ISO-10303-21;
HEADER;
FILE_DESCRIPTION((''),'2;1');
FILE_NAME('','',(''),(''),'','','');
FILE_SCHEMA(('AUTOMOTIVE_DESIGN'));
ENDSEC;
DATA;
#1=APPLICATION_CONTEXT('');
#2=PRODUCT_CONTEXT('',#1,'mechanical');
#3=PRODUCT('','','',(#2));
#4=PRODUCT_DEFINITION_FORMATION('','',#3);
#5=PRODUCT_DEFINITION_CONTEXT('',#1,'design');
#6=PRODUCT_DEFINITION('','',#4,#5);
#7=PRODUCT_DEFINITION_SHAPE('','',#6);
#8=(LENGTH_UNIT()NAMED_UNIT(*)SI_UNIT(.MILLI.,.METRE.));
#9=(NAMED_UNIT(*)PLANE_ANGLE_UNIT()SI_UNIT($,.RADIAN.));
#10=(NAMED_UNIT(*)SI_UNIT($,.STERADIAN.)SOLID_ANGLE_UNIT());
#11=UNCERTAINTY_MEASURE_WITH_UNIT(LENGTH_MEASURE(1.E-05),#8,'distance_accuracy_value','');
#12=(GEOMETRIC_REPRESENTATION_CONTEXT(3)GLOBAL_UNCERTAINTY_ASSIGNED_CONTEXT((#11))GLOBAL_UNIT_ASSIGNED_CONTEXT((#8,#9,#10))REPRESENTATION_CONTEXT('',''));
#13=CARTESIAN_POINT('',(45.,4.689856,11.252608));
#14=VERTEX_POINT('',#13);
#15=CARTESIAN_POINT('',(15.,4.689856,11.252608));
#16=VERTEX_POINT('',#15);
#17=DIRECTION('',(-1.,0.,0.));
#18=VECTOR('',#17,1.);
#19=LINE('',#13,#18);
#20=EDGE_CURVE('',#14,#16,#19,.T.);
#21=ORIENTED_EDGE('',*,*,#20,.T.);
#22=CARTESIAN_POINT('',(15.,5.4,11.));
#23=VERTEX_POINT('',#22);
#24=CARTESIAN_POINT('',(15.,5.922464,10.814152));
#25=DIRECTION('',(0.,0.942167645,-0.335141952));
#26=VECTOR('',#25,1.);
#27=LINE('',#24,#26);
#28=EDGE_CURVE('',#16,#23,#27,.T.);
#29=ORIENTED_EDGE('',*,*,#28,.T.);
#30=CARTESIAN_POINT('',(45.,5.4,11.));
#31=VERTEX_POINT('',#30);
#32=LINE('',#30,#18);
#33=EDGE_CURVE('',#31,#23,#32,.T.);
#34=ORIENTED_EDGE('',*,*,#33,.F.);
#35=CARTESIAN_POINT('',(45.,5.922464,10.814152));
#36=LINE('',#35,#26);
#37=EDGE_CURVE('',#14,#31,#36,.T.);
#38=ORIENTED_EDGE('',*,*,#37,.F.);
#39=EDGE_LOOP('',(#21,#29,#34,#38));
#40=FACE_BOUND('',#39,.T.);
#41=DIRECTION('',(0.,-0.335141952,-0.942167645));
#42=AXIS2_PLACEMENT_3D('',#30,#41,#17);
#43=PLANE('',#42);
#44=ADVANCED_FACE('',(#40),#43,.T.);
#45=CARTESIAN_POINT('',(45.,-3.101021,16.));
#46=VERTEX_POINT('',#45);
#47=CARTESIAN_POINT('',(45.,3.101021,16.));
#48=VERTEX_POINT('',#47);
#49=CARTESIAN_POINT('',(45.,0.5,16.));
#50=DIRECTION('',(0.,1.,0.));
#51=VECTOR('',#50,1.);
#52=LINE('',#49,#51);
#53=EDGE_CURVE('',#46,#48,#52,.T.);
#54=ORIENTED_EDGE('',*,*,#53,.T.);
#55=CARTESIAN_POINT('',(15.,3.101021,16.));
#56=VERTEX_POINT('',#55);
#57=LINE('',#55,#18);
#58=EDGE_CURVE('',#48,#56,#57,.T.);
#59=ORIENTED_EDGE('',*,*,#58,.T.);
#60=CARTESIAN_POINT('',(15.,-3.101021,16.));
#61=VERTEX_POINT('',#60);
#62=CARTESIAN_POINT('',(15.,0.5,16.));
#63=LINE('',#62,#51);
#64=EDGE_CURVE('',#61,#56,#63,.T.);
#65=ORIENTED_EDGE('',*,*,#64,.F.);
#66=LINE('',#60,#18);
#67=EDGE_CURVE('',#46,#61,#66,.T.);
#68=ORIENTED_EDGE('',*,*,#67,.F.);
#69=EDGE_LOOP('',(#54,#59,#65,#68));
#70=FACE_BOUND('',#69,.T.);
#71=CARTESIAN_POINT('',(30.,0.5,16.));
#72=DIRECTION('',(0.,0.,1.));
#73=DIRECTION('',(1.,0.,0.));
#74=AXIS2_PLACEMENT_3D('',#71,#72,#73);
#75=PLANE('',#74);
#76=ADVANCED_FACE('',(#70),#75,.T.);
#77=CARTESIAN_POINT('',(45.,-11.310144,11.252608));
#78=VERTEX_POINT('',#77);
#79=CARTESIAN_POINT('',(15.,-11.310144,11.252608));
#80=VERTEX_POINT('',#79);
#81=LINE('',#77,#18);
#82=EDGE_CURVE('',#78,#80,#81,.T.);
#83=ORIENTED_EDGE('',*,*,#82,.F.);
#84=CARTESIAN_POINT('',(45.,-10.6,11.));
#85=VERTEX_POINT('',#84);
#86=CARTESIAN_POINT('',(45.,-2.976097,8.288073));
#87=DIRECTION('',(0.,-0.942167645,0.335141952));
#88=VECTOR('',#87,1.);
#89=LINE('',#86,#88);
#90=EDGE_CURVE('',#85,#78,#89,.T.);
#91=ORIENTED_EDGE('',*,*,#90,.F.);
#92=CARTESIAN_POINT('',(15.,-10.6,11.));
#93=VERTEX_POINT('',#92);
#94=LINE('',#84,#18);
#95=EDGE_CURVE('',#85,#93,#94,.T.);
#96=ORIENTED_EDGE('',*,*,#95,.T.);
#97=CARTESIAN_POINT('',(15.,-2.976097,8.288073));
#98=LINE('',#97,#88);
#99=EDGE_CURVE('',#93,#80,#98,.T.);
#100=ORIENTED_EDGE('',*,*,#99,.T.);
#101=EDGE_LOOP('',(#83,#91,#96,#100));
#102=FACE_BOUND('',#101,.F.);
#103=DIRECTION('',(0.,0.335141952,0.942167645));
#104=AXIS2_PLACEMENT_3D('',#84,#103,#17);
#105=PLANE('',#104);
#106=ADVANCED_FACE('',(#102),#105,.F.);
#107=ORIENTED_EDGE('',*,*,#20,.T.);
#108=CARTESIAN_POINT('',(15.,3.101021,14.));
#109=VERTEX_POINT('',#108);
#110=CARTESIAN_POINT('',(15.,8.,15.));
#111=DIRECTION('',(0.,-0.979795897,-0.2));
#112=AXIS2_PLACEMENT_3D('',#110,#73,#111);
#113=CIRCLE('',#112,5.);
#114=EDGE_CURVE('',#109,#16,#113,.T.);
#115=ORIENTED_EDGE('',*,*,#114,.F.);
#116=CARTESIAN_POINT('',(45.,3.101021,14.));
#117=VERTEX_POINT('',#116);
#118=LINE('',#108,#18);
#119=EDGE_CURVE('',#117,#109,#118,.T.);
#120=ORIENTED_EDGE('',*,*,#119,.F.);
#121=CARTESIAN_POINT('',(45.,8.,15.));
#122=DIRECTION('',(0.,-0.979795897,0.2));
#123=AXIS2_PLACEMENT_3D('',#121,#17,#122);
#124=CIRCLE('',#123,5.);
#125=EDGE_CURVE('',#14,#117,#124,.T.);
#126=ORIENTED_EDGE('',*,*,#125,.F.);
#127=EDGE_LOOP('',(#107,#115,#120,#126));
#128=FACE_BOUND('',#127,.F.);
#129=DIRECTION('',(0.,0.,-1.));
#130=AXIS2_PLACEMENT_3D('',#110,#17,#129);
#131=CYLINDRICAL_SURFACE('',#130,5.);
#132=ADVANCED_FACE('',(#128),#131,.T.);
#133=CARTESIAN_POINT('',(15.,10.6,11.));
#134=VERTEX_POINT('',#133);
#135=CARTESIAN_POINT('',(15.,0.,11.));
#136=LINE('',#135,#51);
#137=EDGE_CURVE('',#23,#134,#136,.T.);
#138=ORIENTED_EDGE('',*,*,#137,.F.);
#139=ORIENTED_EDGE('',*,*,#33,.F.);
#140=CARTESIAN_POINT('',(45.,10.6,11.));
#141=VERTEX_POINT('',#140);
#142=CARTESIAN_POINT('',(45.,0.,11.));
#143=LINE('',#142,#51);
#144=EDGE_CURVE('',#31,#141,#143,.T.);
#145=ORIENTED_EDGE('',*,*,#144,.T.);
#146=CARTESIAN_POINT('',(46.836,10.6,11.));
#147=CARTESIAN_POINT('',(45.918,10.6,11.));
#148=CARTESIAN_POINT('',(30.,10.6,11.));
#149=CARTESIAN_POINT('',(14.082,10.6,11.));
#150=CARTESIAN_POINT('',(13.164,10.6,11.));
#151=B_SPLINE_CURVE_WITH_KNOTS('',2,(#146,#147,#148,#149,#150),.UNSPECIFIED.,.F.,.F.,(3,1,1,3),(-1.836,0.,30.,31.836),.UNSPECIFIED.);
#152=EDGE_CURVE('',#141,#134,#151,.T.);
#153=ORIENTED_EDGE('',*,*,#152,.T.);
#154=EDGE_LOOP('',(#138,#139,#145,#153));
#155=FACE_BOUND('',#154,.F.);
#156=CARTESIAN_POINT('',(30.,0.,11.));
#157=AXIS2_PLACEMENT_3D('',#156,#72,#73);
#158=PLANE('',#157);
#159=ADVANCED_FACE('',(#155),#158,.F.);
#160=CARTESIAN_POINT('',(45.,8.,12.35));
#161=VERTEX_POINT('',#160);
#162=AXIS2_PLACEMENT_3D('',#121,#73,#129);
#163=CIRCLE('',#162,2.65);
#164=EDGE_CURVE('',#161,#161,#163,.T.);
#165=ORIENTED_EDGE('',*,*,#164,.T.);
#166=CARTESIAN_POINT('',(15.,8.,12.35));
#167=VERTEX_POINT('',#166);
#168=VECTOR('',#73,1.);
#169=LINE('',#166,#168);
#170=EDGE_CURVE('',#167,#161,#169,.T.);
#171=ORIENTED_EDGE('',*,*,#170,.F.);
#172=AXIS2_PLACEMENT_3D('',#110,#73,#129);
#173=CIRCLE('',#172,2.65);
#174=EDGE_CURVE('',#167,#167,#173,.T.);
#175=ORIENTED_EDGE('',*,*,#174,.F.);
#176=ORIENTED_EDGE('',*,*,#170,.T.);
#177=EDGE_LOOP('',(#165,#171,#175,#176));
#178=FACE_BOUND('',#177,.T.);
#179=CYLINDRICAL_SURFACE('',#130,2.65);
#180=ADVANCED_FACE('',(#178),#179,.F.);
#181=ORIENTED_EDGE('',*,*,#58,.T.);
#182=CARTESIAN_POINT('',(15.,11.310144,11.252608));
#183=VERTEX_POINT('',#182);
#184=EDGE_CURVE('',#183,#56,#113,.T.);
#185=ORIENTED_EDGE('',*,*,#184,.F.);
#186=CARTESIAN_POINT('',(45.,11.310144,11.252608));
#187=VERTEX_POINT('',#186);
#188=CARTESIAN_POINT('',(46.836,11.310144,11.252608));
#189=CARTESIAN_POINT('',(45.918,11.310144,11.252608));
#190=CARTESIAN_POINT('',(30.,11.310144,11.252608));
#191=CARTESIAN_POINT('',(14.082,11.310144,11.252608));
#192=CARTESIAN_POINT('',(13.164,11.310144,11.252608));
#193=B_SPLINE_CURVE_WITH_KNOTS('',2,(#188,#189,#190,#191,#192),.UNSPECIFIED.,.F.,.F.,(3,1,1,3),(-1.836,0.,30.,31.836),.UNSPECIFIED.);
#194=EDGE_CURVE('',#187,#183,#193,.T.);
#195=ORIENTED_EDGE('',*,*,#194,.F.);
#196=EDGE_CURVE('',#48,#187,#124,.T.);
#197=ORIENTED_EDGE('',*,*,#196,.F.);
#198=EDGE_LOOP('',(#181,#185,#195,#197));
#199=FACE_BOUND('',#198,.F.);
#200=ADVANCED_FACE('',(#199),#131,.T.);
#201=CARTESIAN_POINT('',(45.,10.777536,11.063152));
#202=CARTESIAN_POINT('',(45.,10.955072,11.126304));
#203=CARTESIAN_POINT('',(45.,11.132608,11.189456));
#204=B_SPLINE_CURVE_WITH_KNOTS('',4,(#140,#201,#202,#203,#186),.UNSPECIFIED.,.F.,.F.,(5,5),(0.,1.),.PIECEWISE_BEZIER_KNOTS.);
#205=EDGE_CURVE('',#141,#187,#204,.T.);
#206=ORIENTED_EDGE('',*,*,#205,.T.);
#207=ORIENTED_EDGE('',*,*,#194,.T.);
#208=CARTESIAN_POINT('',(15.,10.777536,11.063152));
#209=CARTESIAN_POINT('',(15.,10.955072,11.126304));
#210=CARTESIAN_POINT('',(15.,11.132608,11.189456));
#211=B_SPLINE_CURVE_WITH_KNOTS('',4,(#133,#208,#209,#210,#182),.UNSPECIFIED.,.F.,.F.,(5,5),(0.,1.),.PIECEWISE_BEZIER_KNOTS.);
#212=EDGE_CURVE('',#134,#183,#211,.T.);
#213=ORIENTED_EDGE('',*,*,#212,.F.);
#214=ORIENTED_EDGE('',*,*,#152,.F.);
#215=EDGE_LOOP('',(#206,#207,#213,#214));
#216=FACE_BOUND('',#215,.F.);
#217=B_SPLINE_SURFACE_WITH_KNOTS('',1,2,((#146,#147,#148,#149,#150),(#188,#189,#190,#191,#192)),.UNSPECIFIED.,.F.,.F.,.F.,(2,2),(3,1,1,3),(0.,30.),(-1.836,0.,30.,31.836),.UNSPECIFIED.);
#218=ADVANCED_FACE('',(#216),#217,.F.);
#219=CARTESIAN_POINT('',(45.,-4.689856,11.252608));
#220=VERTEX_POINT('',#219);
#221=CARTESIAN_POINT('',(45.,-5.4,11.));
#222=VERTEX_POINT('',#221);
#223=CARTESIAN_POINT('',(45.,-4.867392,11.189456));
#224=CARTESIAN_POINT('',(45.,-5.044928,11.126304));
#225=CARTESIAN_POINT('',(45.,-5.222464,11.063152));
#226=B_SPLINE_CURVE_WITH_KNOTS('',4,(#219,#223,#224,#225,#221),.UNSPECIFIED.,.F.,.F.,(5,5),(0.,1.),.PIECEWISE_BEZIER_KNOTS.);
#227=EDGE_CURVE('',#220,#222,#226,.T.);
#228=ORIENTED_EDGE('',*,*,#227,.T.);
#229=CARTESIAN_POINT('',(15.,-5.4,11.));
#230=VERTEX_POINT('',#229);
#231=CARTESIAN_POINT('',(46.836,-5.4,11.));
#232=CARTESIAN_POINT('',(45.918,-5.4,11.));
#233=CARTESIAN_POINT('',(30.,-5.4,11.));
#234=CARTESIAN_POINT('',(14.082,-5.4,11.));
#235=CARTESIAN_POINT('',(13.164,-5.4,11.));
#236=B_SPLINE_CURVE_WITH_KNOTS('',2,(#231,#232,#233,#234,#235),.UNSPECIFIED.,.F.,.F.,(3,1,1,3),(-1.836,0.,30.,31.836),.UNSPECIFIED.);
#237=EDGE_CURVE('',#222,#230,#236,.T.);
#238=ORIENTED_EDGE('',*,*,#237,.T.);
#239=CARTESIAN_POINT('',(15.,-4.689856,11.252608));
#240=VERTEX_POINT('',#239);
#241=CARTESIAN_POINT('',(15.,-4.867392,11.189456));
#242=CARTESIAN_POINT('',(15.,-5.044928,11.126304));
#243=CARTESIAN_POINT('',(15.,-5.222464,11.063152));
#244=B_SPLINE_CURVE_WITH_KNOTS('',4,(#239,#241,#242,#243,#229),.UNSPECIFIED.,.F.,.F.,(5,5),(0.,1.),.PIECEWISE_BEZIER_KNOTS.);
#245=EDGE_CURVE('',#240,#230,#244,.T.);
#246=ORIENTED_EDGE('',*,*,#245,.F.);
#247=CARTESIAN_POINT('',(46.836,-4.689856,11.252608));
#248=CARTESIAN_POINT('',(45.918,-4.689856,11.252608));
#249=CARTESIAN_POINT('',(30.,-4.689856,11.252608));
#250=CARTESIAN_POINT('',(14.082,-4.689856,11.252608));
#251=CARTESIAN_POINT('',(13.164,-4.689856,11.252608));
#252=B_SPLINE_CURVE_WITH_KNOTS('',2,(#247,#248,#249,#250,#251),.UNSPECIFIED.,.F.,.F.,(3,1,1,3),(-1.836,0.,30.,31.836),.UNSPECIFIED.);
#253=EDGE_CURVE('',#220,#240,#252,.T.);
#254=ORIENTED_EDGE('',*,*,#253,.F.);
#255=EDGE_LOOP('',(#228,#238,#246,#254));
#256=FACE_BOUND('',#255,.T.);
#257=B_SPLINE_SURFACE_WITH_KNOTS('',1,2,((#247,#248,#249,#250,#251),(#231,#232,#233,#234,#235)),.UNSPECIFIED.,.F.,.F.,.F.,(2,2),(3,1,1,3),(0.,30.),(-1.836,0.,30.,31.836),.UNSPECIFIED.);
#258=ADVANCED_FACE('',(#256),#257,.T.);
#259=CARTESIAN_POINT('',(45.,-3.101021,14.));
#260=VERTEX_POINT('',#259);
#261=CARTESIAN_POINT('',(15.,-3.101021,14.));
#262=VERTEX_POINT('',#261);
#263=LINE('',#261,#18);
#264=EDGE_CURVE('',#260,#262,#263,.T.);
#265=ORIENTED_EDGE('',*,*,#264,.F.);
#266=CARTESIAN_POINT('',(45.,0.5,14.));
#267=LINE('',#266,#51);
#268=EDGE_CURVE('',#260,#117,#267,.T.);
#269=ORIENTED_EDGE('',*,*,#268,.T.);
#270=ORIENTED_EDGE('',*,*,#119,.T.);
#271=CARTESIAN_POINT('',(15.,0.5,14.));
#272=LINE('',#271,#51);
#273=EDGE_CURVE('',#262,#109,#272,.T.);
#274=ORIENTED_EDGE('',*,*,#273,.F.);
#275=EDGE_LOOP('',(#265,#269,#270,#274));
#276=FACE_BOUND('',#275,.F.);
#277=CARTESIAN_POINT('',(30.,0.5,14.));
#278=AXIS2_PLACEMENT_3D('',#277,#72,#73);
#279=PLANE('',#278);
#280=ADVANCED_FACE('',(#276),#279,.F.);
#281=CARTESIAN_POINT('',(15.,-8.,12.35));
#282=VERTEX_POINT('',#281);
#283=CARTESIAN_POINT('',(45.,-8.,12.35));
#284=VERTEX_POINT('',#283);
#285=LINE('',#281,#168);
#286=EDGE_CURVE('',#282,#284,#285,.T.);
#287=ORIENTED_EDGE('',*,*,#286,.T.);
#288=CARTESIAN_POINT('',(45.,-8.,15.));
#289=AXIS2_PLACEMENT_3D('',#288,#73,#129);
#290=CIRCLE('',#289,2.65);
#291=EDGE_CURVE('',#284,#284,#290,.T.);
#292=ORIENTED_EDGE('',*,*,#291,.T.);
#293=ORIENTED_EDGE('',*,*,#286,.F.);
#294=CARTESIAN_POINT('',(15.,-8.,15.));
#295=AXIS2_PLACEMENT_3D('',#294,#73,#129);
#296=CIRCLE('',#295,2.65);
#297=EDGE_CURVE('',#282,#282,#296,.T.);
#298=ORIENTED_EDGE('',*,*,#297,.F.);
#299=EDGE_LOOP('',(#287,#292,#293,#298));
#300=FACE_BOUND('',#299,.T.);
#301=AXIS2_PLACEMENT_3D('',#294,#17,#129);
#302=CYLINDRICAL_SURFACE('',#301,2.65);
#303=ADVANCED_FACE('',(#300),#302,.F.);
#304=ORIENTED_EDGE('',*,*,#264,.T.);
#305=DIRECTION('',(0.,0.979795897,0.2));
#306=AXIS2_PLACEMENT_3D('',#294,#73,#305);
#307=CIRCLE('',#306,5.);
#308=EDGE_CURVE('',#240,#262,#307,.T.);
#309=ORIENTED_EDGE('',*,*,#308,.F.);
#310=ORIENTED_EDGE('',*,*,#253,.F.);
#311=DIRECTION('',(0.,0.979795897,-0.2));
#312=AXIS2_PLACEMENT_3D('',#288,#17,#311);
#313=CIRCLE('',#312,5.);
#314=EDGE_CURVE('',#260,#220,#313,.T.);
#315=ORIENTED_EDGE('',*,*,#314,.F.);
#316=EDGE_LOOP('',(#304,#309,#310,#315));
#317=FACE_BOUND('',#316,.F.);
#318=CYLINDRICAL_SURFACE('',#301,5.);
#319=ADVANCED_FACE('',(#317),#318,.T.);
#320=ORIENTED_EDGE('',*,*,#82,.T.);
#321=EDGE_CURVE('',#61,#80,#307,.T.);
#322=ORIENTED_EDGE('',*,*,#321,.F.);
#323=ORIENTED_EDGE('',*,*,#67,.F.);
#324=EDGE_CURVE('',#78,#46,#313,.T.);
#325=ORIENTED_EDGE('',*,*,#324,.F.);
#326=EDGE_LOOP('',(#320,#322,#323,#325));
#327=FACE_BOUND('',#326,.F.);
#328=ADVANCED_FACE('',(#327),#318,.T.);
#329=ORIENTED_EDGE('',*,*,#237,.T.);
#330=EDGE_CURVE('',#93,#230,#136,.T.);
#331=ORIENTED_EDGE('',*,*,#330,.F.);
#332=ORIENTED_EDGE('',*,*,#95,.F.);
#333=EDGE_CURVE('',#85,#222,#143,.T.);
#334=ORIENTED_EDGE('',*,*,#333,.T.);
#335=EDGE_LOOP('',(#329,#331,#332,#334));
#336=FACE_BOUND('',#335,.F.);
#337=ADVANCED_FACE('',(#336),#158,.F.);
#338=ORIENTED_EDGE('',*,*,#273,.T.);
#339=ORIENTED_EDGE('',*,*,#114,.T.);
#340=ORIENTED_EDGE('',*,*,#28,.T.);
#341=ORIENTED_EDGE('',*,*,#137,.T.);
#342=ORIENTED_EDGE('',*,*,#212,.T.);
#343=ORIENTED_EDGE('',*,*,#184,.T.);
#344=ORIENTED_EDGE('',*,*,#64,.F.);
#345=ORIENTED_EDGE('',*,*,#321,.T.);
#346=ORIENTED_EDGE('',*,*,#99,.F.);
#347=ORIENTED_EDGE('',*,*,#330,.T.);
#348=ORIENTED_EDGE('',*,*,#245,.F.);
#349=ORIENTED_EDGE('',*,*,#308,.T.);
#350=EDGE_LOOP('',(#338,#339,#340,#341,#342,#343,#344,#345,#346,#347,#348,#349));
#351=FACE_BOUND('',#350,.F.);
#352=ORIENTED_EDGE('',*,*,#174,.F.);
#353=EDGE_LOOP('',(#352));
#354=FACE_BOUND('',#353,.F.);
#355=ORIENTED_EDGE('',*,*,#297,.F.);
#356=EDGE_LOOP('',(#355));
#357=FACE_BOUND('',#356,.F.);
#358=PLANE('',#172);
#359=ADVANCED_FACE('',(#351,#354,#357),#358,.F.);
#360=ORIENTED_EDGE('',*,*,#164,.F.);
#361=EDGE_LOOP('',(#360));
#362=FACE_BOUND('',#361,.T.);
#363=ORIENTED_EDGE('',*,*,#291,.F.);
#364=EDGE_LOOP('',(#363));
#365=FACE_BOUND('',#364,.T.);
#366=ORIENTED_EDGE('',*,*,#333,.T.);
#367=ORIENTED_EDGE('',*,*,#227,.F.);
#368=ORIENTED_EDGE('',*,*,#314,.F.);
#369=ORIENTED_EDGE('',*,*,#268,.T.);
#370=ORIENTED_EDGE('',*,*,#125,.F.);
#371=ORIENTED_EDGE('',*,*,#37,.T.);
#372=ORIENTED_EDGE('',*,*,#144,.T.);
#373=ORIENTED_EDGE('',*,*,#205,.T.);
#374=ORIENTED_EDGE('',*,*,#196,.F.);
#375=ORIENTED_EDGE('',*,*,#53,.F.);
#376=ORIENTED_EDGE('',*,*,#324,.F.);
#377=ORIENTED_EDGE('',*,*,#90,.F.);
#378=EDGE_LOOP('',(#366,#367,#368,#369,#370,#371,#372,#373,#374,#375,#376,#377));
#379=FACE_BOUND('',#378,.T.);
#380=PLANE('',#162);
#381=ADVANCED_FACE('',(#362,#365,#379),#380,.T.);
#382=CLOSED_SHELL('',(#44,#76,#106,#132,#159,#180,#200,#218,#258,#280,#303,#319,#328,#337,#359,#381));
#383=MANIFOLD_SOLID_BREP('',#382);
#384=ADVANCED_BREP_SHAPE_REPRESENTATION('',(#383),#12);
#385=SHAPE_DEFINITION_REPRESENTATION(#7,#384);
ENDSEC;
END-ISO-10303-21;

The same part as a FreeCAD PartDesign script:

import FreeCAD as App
import Part
import Sketcher


def edges_at(feature, points):
    """Names of the edges that pass closest to the given points."""
    edges = feature.Shape.Edges
    near = lambda p: min(range(len(edges)), key=lambda i: edges[i].distToShape(Part.Vertex(*p))[0])
    return sorted({f"Edge{near(p) + 1}" for p in points})

doc = App.newDocument("Part")
body = doc.addObject("PartDesign::Body", "Body")

sketch1 = body.newObject("Sketcher::SketchObject", "Sketch")
sketch1.AttachmentSupport = (doc.getObject("XY_Plane"), [""])
sketch1.MapMode = "FlatFace"
sketch1.AttachmentOffset = App.Placement(App.Vector(0, 0, 9), App.Rotation())
sketch1.addGeometry(Part.LineSegment(App.Vector(15, 12, 0), App.Vector(15, -12, 0)), False)
sketch1.addGeometry(Part.LineSegment(App.Vector(15, -12, 0), App.Vector(45, -12, 0)), False)
sketch1.addGeometry(Part.LineSegment(App.Vector(45, -12, 0), App.Vector(45, 12, 0)), False)
sketch1.addGeometry(Part.LineSegment(App.Vector(45, 12, 0), App.Vector(15, 12, 0)), False)
sketch1.addConstraint(Sketcher.Constraint("Coincident", 0, 2, 1, 1))
sketch1.addConstraint(Sketcher.Constraint("Coincident", 1, 2, 2, 1))
sketch1.addConstraint(Sketcher.Constraint("Coincident", 2, 2, 3, 1))
sketch1.addConstraint(Sketcher.Constraint("Coincident", 3, 2, 0, 1))
sketch1.addConstraint(Sketcher.Constraint("Vertical", 0))
sketch1.addConstraint(Sketcher.Constraint("Horizontal", 1))
sketch1.addConstraint(Sketcher.Constraint("Vertical", 2))
sketch1.addConstraint(Sketcher.Constraint("Horizontal", 3))
sketch1.addConstraint(Sketcher.Constraint("DistanceX", 1, 1, 1, 2, 30.0))
sketch1.addConstraint(Sketcher.Constraint("DistanceY", 0, 2, 0, 1, 24.0))
sketch1.addConstraint(Sketcher.Constraint("DistanceX", -1, 1, 0, 2, 15.0))
sketch1.addConstraint(Sketcher.Constraint("DistanceY", 0, 2, -1, 1, 12.0))
pad1 = body.newObject("PartDesign::Pad", "Pad")
pad1.Profile = sketch1
pad1.Length = 2
body2 = doc.addObject("PartDesign::Body", "Body001")

sketch2 = body2.newObject("Sketcher::SketchObject", "Sketch001")
sketch2.AttachmentSupport = (doc.getObject("YZ_Plane001"), [""])
sketch2.MapMode = "FlatFace"
sketch2.AttachmentOffset = App.Placement(App.Vector(0, 0, 15), App.Rotation())
sketch2.addGeometry(Part.Circle(App.Vector(-8, 15, 0), App.Vector(0, 0, 1), 2.6), False)
sketch2.addConstraint(Sketcher.Constraint("Diameter", 0, 5.3))
sketch2.addConstraint(Sketcher.Constraint("DistanceX", 0, 3, -1, 1, 8.0))
sketch2.addConstraint(Sketcher.Constraint("DistanceY", -1, 1, 0, 3, 15.0))
pad2 = body2.newObject("PartDesign::Pad", "Pad001")
pad2.Profile = sketch2
pad2.Length = 30
body3 = doc.addObject("PartDesign::Body", "Body002")
body3.AllowCompound = True

sketch3 = body3.newObject("Sketcher::SketchObject", "Sketch002")
sketch3.AttachmentSupport = (doc.getObject("YZ_Plane002"), [""])
sketch3.MapMode = "FlatFace"
sketch3.AttachmentOffset = App.Placement(App.Vector(0, 0, 15), App.Rotation())
sketch3.addGeometry(Part.Circle(App.Vector(8, 15, 0), App.Vector(0, 0, 1), 2.6), False)
sketch3.addConstraint(Sketcher.Constraint("Diameter", 0, 5.3))
sketch3.addConstraint(Sketcher.Constraint("DistanceX", -1, 1, 0, 3, 8.0))
sketch3.addConstraint(Sketcher.Constraint("DistanceY", -1, 1, 0, 3, 15.0))
pad3 = body3.newObject("PartDesign::Pad", "Pad002")
pad3.Profile = sketch3
pad3.Length = 30
doc.recompute()

boolean = body3.newObject("PartDesign::Boolean", "Boolean")
boolean.Type = "Fuse"
boolean.addObjects([body2])
body4 = doc.addObject("PartDesign::Body", "Body003")

sketch4 = body4.newObject("Sketcher::SketchObject", "Sketch003")
sketch4.AttachmentSupport = (doc.getObject("YZ_Plane003"), [""])
sketch4.MapMode = "FlatFace"
sketch4.AttachmentOffset = App.Placement(App.Vector(0, 0, 15), App.Rotation())
sketch4.addGeometry(Part.Circle(App.Vector(-8, 15, 0), App.Vector(0, 0, 1), 5), False)
sketch4.addConstraint(Sketcher.Constraint("Diameter", 0, 10.0))
sketch4.addConstraint(Sketcher.Constraint("DistanceX", 0, 3, -1, 1, 8.0))
sketch4.addConstraint(Sketcher.Constraint("DistanceY", -1, 1, 0, 3, 15.0))
pad4 = body4.newObject("PartDesign::Pad", "Pad003")
pad4.Profile = sketch4
pad4.Length = 30
body5 = doc.addObject("PartDesign::Body", "Body004")

sketch5 = body5.newObject("Sketcher::SketchObject", "Sketch004")
sketch5.AttachmentSupport = (doc.getObject("YZ_Plane004"), [""])
sketch5.MapMode = "FlatFace"
sketch5.AttachmentOffset = App.Placement(App.Vector(0, 0, 15), App.Rotation())
sketch5.addGeometry(Part.Circle(App.Vector(8, 15, 0), App.Vector(0, 0, 1), 5), False)
sketch5.addConstraint(Sketcher.Constraint("Diameter", 0, 10.0))
sketch5.addConstraint(Sketcher.Constraint("DistanceX", -1, 1, 0, 3, 8.0))
sketch5.addConstraint(Sketcher.Constraint("DistanceY", -1, 1, 0, 3, 15.0))
pad5 = body5.newObject("PartDesign::Pad", "Pad004")
pad5.Profile = sketch5
pad5.Length = 30
body6 = doc.addObject("PartDesign::Body", "Body005")

sketch6 = body6.newObject("Sketcher::SketchObject", "Sketch005")
sketch6.AttachmentSupport = (doc.getObject("XY_Plane005"), [""])
sketch6.MapMode = "FlatFace"
sketch6.AttachmentOffset = App.Placement(App.Vector(0, 0, 14), App.Rotation())
sketch6.addGeometry(Part.LineSegment(App.Vector(15, 5, 0), App.Vector(15, -4, 0)), False)
sketch6.addGeometry(Part.LineSegment(App.Vector(15, -4, 0), App.Vector(45, -4, 0)), False)
sketch6.addGeometry(Part.LineSegment(App.Vector(45, -4, 0), App.Vector(45, 5, 0)), False)
sketch6.addGeometry(Part.LineSegment(App.Vector(45, 5, 0), App.Vector(15, 5, 0)), False)
sketch6.addConstraint(Sketcher.Constraint("Coincident", 0, 2, 1, 1))
sketch6.addConstraint(Sketcher.Constraint("Coincident", 1, 2, 2, 1))
sketch6.addConstraint(Sketcher.Constraint("Coincident", 2, 2, 3, 1))
sketch6.addConstraint(Sketcher.Constraint("Coincident", 3, 2, 0, 1))
sketch6.addConstraint(Sketcher.Constraint("Vertical", 0))
sketch6.addConstraint(Sketcher.Constraint("Horizontal", 1))
sketch6.addConstraint(Sketcher.Constraint("Vertical", 2))
sketch6.addConstraint(Sketcher.Constraint("Horizontal", 3))
sketch6.addConstraint(Sketcher.Constraint("DistanceX", 1, 1, 1, 2, 30.0))
sketch6.addConstraint(Sketcher.Constraint("DistanceY", 0, 2, 0, 1, 9.0))
sketch6.addConstraint(Sketcher.Constraint("DistanceX", -1, 1, 0, 2, 15.0))
sketch6.addConstraint(Sketcher.Constraint("DistanceY", 0, 2, -1, 1, 4.0))
pad6 = body6.newObject("PartDesign::Pad", "Pad005")
pad6.Profile = sketch6
pad6.Length = 2
doc.recompute()

boolean2 = body6.newObject("PartDesign::Boolean", "Boolean001")
boolean2.Type = "Fuse"
boolean2.addObjects([body4])
doc.recompute()

boolean3 = body6.newObject("PartDesign::Boolean", "Boolean002")
boolean3.Type = "Fuse"
boolean3.addObjects([body5])
doc.recompute()

boolean4 = body6.newObject("PartDesign::Boolean", "Boolean003")
boolean4.Type = "Cut"
boolean4.addObjects([body3])
doc.recompute()

boolean5 = body6.newObject("PartDesign::Boolean", "Boolean004")
boolean5.Type = "Cut"
boolean5.addObjects([body])
doc.recompute()

chamfer = body6.newObject("PartDesign::Chamfer", "Chamfer")
chamfer.Base = (boolean5, edges_at(boolean5, [
    (30, -5, 11),
    (30, -11, 11),
    (30, 11, 11),
    (30, 5, 11),
]))
chamfer.Size = 0.4

doc.recompute()
